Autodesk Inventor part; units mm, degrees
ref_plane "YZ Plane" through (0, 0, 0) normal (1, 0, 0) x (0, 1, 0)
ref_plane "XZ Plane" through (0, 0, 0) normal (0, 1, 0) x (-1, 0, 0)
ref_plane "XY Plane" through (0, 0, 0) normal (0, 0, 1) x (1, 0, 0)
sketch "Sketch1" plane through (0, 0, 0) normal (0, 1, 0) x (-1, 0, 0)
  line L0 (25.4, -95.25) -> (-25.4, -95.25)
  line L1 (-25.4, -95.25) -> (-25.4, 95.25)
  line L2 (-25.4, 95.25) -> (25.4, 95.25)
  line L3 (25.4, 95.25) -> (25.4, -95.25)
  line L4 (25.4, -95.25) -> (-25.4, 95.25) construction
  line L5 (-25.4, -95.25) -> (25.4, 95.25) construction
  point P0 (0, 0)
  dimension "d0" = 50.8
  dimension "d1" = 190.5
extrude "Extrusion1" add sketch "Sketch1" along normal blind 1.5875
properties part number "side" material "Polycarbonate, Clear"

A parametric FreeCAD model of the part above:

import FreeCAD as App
import Part
import Sketcher
Q = App.Units.Quantity

doc = App.newDocument("Part")
params = doc.addObject("Spreadsheet::Sheet", "Params")
for row, (alias, value) in enumerate([
    ("sketch1_width", "2 in"),
    ("sketch1_height", "7.5 in"),
    ("pad1_length", "0.0625 in"),
], start=1):
    params.set(f"A{row}", alias)
    params.set(f"B{row}", "=" + value)
    params.setAlias(f"B{row}", alias)

body = doc.addObject("PartDesign::Body", "Body")

sketch1 = doc.addObject("Sketcher::SketchObject", "Sketch")
body.addObject(sketch1)
sketch1.AttachmentSupport = (doc.XZ_Plane, [""])
sketch1.MapMode = "FlatFace"
sketch1.addGeometry(Part.LineSegment(App.Vector(25, -95, 0), App.Vector(-25, -95, 0)), False)
sketch1.addGeometry(Part.LineSegment(App.Vector(-25, -95, 0), App.Vector(-25, 95, 0)), False)
sketch1.addGeometry(Part.LineSegment(App.Vector(-25, 95, 0), App.Vector(25, 95, 0)), False)
sketch1.addGeometry(Part.LineSegment(App.Vector(25, 95, 0), App.Vector(25, -95, 0)), False)
sketch1.addConstraint(Sketcher.Constraint("Coincident", 0, 2, 1, 1))
sketch1.addConstraint(Sketcher.Constraint("Coincident", 1, 2, 2, 1))
sketch1.addConstraint(Sketcher.Constraint("Coincident", 2, 2, 3, 1))
sketch1.addConstraint(Sketcher.Constraint("Coincident", 3, 2, 0, 1))
sketch1.addConstraint(Sketcher.Constraint("Horizontal", 0))
sketch1.addConstraint(Sketcher.Constraint("Vertical", 1))
sketch1.addConstraint(Sketcher.Constraint("Horizontal", 2))
sketch1.addConstraint(Sketcher.Constraint("Vertical", 3))
sketch1.addConstraint(Sketcher.Constraint("Symmetric", 0, 2, 2, 2, -1, 1))
sketch1.addConstraint(Sketcher.Constraint("DistanceX", 0, 2, 0, 1, Q("2 in")))
sketch1.addConstraint(Sketcher.Constraint("DistanceY", 1, 1, 1, 2, Q("7.5 in")))
sketch1.setExpression("Constraints[9]", "Params.sketch1_width")
sketch1.setExpression("Constraints[10]", "Params.sketch1_height")
pad1 = doc.addObject("PartDesign::Pad", "Pad")
body.addObject(pad1)
pad1.Profile = sketch1
pad1.setExpression("Length", "Params.pad1_length")
pad1.Reversed = True

doc.recompute()
